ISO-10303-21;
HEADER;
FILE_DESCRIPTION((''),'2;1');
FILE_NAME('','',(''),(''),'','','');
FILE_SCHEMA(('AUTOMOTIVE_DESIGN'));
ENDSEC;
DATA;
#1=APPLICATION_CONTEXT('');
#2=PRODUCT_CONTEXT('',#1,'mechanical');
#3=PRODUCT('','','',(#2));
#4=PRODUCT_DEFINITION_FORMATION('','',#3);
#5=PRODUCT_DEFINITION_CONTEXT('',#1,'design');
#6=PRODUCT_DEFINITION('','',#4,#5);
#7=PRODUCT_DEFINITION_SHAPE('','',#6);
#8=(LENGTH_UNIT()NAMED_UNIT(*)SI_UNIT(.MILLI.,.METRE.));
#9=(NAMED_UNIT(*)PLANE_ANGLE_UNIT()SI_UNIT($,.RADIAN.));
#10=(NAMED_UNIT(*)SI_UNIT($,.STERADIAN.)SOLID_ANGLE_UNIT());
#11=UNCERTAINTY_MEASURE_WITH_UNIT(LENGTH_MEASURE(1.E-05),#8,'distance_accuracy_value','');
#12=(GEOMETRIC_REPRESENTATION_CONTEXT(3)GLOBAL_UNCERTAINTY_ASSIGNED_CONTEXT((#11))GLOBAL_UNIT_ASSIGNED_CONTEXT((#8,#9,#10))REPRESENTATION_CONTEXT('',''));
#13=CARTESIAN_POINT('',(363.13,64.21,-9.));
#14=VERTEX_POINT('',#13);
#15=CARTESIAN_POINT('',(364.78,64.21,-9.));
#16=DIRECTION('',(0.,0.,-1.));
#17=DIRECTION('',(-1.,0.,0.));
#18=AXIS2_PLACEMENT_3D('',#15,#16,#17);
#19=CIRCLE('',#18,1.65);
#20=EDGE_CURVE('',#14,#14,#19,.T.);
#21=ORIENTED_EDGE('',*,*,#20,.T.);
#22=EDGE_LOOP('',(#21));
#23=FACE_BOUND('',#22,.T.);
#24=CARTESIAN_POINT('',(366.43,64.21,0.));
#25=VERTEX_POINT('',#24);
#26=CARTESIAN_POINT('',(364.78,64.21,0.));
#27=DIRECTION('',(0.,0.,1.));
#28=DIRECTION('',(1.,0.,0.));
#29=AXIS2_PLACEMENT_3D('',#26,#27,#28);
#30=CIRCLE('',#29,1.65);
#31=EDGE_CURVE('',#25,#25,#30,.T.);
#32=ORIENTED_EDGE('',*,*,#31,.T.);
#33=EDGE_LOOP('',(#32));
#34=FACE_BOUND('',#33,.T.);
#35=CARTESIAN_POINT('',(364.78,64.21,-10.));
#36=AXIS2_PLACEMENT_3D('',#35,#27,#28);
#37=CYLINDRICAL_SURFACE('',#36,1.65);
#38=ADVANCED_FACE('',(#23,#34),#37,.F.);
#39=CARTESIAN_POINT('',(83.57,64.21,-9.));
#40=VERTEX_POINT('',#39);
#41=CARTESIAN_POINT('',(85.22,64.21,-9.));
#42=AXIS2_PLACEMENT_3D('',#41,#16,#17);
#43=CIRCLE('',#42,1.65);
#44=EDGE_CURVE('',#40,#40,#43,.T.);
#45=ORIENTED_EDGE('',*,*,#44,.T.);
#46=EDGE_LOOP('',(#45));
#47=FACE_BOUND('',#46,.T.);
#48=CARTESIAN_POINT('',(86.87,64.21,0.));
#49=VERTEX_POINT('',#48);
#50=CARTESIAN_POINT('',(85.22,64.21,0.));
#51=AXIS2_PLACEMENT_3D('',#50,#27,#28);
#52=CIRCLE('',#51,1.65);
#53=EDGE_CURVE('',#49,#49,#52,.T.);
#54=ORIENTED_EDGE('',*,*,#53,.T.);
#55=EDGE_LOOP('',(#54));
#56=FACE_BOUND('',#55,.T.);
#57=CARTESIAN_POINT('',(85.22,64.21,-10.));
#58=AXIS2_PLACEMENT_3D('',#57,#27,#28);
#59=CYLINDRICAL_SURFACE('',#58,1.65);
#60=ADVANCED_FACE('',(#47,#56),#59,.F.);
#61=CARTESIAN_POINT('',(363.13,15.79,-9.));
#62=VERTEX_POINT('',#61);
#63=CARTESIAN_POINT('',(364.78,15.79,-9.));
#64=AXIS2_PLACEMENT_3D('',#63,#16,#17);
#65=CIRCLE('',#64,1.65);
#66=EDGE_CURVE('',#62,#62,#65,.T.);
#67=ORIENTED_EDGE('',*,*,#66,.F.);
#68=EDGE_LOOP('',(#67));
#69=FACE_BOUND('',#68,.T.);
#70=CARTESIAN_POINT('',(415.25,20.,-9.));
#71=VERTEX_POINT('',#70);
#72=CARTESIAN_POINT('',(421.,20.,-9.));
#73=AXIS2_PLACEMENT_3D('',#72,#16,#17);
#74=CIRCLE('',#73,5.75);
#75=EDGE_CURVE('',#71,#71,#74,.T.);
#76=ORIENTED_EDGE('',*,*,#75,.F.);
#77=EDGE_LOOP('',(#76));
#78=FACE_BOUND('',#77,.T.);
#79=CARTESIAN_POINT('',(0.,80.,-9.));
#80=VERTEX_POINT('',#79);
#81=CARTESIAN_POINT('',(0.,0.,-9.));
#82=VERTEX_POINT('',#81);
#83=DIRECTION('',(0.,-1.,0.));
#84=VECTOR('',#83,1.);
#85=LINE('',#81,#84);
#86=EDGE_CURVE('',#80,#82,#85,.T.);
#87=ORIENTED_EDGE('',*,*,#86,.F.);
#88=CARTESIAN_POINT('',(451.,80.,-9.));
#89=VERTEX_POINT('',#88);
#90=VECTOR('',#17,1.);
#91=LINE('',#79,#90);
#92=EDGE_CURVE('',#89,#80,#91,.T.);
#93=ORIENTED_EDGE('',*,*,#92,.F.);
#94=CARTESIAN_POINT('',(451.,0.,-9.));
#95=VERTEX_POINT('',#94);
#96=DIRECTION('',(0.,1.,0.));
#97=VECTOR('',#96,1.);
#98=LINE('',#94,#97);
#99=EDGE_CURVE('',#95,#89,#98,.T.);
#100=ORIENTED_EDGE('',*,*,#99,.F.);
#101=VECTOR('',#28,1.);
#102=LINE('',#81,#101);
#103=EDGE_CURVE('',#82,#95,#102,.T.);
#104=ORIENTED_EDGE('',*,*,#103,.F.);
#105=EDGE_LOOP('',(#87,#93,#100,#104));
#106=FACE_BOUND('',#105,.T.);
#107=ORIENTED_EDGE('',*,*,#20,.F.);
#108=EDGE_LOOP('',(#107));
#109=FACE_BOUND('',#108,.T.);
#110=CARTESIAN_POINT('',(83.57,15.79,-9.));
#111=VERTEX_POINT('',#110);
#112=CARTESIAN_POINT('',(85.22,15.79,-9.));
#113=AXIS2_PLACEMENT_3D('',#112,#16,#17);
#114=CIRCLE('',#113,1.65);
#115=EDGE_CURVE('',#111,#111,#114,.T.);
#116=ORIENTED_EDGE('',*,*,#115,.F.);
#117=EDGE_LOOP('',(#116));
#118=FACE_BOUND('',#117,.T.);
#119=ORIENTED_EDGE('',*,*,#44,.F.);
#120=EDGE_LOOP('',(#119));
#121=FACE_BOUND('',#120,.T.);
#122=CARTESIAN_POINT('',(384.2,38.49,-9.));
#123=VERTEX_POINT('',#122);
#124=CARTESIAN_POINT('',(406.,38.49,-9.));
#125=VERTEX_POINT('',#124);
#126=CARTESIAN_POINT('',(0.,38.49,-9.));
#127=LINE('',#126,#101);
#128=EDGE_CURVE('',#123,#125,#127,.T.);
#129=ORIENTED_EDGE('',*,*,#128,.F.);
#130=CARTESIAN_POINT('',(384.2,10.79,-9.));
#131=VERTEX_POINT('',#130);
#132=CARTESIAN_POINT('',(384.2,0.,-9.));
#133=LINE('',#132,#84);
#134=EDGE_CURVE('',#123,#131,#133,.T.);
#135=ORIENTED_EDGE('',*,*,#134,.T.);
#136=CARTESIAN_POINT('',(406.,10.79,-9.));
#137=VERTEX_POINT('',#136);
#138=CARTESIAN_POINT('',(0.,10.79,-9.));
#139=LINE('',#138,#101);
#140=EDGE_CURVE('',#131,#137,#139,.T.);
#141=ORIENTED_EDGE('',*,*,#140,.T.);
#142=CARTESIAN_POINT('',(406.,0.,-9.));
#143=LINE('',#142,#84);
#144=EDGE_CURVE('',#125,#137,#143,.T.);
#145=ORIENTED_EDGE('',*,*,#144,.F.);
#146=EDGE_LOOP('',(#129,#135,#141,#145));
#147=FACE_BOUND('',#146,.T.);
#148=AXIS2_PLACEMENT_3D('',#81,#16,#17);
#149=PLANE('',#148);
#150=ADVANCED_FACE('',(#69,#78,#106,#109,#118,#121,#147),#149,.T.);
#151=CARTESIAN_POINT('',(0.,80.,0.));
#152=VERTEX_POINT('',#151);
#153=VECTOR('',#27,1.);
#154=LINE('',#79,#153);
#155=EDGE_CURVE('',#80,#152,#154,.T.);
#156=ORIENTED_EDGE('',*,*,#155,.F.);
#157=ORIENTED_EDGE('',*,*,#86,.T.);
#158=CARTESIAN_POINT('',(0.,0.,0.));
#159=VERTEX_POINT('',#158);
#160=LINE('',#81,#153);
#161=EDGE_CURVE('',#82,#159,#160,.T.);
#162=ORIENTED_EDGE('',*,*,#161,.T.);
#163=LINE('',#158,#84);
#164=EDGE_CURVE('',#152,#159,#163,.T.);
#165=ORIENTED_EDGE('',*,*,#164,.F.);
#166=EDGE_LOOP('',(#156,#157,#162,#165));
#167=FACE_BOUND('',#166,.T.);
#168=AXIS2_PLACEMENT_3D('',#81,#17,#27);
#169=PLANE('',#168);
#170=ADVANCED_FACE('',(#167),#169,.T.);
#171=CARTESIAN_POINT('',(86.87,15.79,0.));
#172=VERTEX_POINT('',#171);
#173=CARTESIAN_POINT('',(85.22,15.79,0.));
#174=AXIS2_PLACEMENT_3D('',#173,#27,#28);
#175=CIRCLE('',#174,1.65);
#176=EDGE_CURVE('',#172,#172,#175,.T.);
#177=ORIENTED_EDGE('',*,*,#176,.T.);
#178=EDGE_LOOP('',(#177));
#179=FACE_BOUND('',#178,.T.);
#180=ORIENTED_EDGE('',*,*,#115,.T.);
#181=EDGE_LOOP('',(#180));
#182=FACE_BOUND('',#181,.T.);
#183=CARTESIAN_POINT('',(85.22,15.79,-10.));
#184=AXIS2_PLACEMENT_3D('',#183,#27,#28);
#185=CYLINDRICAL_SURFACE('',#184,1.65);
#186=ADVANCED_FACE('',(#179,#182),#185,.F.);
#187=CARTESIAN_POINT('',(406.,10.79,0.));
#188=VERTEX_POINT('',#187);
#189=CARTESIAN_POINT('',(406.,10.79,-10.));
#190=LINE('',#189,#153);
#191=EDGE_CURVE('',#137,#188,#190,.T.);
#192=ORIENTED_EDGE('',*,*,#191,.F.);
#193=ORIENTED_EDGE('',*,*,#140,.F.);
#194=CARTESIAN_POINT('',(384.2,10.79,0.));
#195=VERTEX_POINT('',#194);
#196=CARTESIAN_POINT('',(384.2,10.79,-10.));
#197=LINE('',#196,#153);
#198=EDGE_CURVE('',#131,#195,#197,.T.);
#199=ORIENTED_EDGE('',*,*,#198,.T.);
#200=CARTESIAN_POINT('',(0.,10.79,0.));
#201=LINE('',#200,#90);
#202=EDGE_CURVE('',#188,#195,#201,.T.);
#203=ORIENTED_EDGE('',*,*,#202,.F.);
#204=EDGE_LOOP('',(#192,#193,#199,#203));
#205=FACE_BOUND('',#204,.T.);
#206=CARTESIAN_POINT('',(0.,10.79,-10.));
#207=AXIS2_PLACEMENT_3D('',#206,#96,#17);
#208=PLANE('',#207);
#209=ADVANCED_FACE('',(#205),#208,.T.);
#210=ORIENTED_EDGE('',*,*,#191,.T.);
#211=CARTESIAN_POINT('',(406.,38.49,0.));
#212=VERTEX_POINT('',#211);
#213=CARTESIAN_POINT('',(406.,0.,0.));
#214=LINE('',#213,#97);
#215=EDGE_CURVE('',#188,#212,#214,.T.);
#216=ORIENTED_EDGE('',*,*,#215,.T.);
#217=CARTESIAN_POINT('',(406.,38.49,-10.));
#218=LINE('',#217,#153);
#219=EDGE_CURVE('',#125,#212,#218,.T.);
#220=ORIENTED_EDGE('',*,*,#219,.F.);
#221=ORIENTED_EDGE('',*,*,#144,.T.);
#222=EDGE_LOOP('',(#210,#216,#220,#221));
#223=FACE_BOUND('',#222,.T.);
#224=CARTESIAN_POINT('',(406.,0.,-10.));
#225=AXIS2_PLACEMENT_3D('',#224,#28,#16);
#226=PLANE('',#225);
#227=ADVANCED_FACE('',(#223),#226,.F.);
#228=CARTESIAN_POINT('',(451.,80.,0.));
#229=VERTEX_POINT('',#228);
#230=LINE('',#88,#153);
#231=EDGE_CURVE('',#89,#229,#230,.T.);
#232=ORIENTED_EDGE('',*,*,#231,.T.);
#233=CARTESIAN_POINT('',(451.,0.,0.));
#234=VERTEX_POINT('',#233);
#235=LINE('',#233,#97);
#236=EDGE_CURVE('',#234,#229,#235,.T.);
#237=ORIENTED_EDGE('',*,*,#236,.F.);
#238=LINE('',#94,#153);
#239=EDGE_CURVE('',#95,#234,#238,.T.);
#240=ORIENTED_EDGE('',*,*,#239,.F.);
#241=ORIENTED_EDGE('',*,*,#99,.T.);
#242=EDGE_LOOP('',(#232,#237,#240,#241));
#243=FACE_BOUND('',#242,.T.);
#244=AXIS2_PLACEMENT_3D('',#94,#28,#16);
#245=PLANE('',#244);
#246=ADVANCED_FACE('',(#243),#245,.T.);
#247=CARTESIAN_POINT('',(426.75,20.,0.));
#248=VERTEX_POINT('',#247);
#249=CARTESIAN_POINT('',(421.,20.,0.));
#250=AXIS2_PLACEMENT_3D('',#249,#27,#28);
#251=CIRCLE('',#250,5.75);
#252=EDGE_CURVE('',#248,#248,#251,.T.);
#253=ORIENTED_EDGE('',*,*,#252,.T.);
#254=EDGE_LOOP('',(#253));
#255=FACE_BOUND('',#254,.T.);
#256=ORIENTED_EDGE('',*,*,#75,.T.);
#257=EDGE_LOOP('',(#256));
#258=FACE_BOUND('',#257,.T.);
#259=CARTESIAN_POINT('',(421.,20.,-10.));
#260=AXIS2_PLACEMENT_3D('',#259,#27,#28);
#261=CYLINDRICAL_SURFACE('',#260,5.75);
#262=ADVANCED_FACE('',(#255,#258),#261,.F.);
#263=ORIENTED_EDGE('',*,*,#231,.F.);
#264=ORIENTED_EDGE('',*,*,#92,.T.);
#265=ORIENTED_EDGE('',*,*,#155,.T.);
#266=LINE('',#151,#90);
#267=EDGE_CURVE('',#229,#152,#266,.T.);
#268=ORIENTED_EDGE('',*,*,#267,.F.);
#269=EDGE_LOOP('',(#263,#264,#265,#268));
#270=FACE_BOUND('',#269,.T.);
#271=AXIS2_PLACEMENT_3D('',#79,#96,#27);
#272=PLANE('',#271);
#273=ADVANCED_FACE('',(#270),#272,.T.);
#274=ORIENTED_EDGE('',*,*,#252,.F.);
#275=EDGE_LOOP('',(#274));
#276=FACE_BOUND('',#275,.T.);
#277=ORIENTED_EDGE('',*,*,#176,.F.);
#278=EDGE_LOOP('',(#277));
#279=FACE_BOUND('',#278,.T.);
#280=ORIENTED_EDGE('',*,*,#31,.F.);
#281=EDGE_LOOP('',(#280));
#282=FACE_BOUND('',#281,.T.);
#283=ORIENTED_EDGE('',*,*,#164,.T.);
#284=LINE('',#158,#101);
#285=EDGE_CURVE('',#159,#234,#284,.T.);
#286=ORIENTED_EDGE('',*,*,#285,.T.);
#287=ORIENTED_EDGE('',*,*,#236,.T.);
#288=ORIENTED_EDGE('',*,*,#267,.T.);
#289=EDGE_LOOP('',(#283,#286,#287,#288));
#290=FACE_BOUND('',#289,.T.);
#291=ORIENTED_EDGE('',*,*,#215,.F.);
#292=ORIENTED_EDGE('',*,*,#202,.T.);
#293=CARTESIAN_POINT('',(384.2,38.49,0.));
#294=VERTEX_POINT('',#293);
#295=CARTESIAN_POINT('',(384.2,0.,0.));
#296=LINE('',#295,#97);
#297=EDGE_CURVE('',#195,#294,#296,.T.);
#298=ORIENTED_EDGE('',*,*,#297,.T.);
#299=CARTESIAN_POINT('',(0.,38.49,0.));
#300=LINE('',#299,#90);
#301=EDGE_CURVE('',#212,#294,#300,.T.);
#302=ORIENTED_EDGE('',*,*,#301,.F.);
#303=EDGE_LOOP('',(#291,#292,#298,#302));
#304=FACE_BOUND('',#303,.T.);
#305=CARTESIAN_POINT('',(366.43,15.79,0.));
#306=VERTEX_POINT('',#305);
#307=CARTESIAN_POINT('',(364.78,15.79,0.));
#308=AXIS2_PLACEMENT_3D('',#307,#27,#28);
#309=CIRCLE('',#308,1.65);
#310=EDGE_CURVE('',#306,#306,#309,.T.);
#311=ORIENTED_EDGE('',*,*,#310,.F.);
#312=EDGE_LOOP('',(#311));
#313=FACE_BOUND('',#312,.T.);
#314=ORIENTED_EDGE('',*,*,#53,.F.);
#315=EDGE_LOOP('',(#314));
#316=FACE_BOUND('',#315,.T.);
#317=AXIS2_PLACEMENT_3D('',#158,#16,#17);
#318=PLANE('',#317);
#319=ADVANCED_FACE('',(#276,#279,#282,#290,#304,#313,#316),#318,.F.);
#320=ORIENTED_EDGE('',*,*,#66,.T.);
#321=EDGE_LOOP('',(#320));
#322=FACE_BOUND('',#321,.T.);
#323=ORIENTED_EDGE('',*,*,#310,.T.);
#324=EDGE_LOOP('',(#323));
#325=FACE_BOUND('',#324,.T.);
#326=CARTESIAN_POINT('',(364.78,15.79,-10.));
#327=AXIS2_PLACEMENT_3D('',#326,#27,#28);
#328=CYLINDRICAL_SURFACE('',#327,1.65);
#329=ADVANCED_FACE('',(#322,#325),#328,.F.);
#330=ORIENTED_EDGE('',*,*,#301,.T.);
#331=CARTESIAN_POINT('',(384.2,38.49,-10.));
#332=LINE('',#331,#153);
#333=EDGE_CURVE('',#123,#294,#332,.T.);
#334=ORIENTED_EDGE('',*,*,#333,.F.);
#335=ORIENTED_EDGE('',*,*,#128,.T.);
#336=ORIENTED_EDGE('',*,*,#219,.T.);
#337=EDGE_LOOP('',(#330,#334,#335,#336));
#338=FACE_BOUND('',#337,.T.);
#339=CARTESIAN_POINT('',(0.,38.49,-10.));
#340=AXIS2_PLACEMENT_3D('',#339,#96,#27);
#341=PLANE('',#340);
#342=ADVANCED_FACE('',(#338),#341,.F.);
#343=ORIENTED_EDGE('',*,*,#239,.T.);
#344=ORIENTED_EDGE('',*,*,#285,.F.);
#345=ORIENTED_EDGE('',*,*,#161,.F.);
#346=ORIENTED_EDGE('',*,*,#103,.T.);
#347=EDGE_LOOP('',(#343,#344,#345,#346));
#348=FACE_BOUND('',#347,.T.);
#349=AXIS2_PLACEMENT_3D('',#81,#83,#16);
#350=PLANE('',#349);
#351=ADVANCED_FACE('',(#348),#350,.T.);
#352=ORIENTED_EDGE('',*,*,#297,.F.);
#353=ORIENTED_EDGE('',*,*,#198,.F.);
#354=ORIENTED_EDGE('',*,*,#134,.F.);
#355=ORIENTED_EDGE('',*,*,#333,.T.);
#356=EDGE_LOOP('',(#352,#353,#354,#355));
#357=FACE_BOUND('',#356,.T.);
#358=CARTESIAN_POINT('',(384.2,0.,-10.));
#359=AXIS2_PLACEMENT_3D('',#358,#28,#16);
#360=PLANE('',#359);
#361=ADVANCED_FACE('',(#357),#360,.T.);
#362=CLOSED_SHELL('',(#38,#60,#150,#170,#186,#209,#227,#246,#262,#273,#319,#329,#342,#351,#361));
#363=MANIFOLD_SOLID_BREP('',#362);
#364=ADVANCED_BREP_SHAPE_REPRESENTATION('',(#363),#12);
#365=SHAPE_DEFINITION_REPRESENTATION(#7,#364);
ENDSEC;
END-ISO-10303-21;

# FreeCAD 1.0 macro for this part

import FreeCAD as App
import Part
import Sketcher

V = App.Vector
Q = App.Units.Quantity


def add_polygon(sketch, points):
    """Adds a closed chain of lines whose ends are joined by coincident constraints."""
    first, n = sketch.GeometryCount, len(points)
    for a, b in zip(points, points[1:] + points[:1]):
        sketch.addGeometry(Part.LineSegment(App.Vector(*a, 0), App.Vector(*b, 0)), False)
    for i in range(n):
        sketch.addConstraint(Sketcher.Constraint("Coincident", first + i, 2, first + (i + 1) % n, 1))

doc = App.newDocument("Part")
body = doc.addObject("PartDesign::Body", "Body")

# Sketch on XY plane
sketch1 = doc.addObject("Sketcher::SketchObject", "Sketch")
body.addObject(sketch1)
sketch1.AttachmentSupport = (doc.XY_Plane, [""])
sketch1.MapMode = "FlatFace"
add_polygon(sketch1, [(0, 80), (0, 0), (451, 0), (451, 80)])  # lines 0-3
sketch1.addConstraint(Sketcher.Constraint("Vertical", 0))
sketch1.addConstraint(Sketcher.Constraint("Horizontal", 1))
sketch1.addConstraint(Sketcher.Constraint("Vertical", 2))
sketch1.addConstraint(Sketcher.Constraint("Horizontal", 3))
sketch1.addConstraint(Sketcher.Constraint("Coincident", 0, 2, -1, 1))
sketch1.addConstraint(Sketcher.Constraint("DistanceX", 1, 1, 1, 2, Q("451 mm")))
sketch1.addConstraint(Sketcher.Constraint("DistanceY", 0, 2, 0, 1, Q("80 mm")))
pad1 = doc.addObject("PartDesign::Pad", "Pad")
body.addObject(pad1)
pad1.Profile = sketch1
pad1.Length = 9
pad1.Reversed = True

# Sketch on XY plane
sketch2 = doc.addObject("Sketcher::SketchObject", "Sketch001")
body.addObject(sketch2)
sketch2.AttachmentSupport = (doc.XY_Plane, [""])
sketch2.MapMode = "FlatFace"
add_polygon(sketch2, [(384.2, 38.5), (384.2, 10.8), (406, 10.8), (406, 38.5)])  # lines 0-3
sketch2.addGeometry(Part.Circle(V(421, 20, 0), V(0, 0, 1), 5.8), False)  # 4
sketch2.addGeometry(Part.Circle(V(364.8, 64.2, 0), V(0, 0, 1), 1.6), False)  # 5
sketch2.addGeometry(Part.Circle(V(364.8, 15.8, 0), V(0, 0, 1), 1.6), False)  # 6
sketch2.addGeometry(Part.Circle(V(85.2, 64.2, 0), V(0, 0, 1), 1.6), False)  # 7
sketch2.addGeometry(Part.Circle(V(85.2, 15.8, 0), V(0, 0, 1), 1.6), False)  # 8
sketch2.addConstraint(Sketcher.Constraint("Vertical", 0))
sketch2.addConstraint(Sketcher.Constraint("Horizontal", 1))
sketch2.addConstraint(Sketcher.Constraint("Vertical", 2))
sketch2.addConstraint(Sketcher.Constraint("Horizontal", 3))
sketch2.addConstraint(Sketcher.Constraint("Equal", 5, 6))
sketch2.addConstraint(Sketcher.Constraint("Equal", 6, 7))
sketch2.addConstraint(Sketcher.Constraint("Equal", 7, 8))
sketch2.addConstraint(Sketcher.Constraint("Horizontal", 5, 3, 7, 3))
sketch2.addConstraint(Sketcher.Constraint("Horizontal", 6, 3, 8, 3))
sketch2.addConstraint(Sketcher.Constraint("Vertical", 5, 3, 6, 3))
sketch2.addConstraint(Sketcher.Constraint("Vertical", 7, 3, 8, 3))
sketch2.addConstraint(Sketcher.Constraint("Diameter", 4, Q("11.5 mm")))
sketch2.addConstraint(Sketcher.Constraint("Diameter", 5, Q("3.3 mm")))
sketch2.addConstraint(Sketcher.Constraint("DistanceX", 1, 1, 1, 2, Q("21.8 mm")))
sketch2.addConstraint(Sketcher.Constraint("DistanceY", 0, 2, 0, 1, Q("27.7 mm")))
sketch2.addConstraint(Sketcher.Constraint("DistanceX", -1, 1, 4, 3, Q("421 mm")))
sketch2.addConstraint(Sketcher.Constraint("DistanceY", -1, 1, 4, 3, Q("20 mm")))
sketch2.addConstraint(Sketcher.Constraint("DistanceX", -1, 1, 1, 2, Q("406 mm")))
sketch2.addConstraint(Sketcher.Constraint("DistanceY", 0, 2, 6, 3, Q("5 mm")))
sketch2.addConstraint(Sketcher.Constraint("DistanceX", -1, 1, 5, 3, Q("364.78 mm")))
sketch2.addConstraint(Sketcher.Constraint("DistanceY", -1, 1, 5, 3, Q("64.21 mm")))
sketch2.addConstraint(Sketcher.Constraint("DistanceY", -1, 1, 6, 3, Q("15.79 mm")))
sketch2.addConstraint(Sketcher.Constraint("DistanceX", -1, 1, 7, 3, Q("85.22 mm")))
pocket1 = doc.addObject("PartDesign::Pocket", "Pocket")
body.addObject(pocket1)
pocket1.Profile = sketch2
pocket1.Length = 10

doc.recompute()
